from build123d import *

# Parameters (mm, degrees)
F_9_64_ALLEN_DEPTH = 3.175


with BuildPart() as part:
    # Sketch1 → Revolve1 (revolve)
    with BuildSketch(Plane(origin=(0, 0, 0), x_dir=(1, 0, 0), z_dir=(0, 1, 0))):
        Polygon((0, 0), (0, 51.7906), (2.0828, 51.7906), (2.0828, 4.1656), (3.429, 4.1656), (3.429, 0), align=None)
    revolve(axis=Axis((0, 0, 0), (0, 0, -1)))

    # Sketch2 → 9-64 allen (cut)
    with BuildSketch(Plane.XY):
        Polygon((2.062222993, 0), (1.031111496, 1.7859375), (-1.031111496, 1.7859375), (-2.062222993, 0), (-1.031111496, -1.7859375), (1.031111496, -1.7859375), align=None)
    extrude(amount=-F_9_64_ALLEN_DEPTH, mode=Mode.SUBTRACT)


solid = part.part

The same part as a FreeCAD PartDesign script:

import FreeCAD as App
import Part
import Sketcher
Q = App.Units.Quantity


def add_polygon(sketch, points):
    """Adds a closed chain of lines whose ends are joined by coincident constraints."""
    first, n = sketch.GeometryCount, len(points)
    for a, b in zip(points, points[1:] + points[:1]):
        sketch.addGeometry(Part.LineSegment(App.Vector(*a, 0), App.Vector(*b, 0)), False)
    for i in range(n):
        sketch.addConstraint(Sketcher.Constraint("Coincident", first + i, 2, first + (i + 1) % n, 1))

doc = App.newDocument("Part")
body = doc.addObject("PartDesign::Body", "Body")

sketch1 = body.newObject("Sketcher::SketchObject", "Sketch")
sketch1.AttachmentSupport = (doc.getObject("XZ_Plane"), [""])
sketch1.MapMode = "FlatFace"
add_polygon(sketch1, [(0, -51.8), (0, 0), (3.4, 0), (3.4, -4.2), (2.1, -4.2), (2.1, -51.8)])
sketch1.addConstraint([
    Sketcher.Constraint("Vertical", 0),
    Sketcher.Constraint("Horizontal", 1),
    Sketcher.Constraint("Vertical", 2),
    Sketcher.Constraint("Horizontal", 3),
    Sketcher.Constraint("Vertical", 4),
    Sketcher.Constraint("Horizontal", 5),
    Sketcher.Constraint("Coincident", 0, 2, -1, 1),
    Sketcher.Constraint("DistanceX", 1, 1, 1, 2, Q("0.135 in")),
    Sketcher.Constraint("DistanceX", 3, 2, 3, 1, Q("0.053 in")),
    Sketcher.Constraint("DistanceY", 0, 1, 0, 2, Q("2.039 in")),
    Sketcher.Constraint("DistanceY", 2, 2, 2, 1, Q("0.164 in")),
])
revolution = body.newObject("PartDesign::Revolution", "Revolution")
revolution.Profile = sketch1
revolution.ReferenceAxis = (sketch1, ["V_Axis"])
revolution.Angle = 360

sketch2 = body.newObject("Sketcher::SketchObject", "Sketch001")
sketch2.AttachmentSupport = (doc.getObject("XY_Plane"), [""])
sketch2.MapMode = "FlatFace"
add_polygon(sketch2, [(2.1, 0), (1, 1.8), (-1, 1.8), (-2.1, 0), (-1, -1.8), (1, -1.8)])
sketch2.addConstraint([
    Sketcher.Constraint("Horizontal", 1),
    Sketcher.Constraint("Horizontal", 4),
    Sketcher.Constraint("Symmetric", 0, 2, 3, 2, -1, 1),
    Sketcher.Constraint("Symmetric", 2, 2, 5, 2, -1, 1),
    Sketcher.Constraint("PointOnObject", 2, 2, -1),
    Sketcher.Constraint("Parallel", 2, 5),
    Sketcher.Constraint("Vertical", 1, 2, 3, 2),
    Sketcher.Constraint("Angle", 0, Q("120 deg")),
    Sketcher.Constraint("DistanceY", 3, 2, 1, 2, Q("0.140625 in")),
    Sketcher.Constraint("DistanceX", 1, 2, 1, 1, Q("2.062223 mm")),
])
pocket1 = body.newObject("PartDesign::Pocket", "Pocket")
pocket1.Profile = sketch2
pocket1.Length = Q("0.125 in")

doc.recompute()
